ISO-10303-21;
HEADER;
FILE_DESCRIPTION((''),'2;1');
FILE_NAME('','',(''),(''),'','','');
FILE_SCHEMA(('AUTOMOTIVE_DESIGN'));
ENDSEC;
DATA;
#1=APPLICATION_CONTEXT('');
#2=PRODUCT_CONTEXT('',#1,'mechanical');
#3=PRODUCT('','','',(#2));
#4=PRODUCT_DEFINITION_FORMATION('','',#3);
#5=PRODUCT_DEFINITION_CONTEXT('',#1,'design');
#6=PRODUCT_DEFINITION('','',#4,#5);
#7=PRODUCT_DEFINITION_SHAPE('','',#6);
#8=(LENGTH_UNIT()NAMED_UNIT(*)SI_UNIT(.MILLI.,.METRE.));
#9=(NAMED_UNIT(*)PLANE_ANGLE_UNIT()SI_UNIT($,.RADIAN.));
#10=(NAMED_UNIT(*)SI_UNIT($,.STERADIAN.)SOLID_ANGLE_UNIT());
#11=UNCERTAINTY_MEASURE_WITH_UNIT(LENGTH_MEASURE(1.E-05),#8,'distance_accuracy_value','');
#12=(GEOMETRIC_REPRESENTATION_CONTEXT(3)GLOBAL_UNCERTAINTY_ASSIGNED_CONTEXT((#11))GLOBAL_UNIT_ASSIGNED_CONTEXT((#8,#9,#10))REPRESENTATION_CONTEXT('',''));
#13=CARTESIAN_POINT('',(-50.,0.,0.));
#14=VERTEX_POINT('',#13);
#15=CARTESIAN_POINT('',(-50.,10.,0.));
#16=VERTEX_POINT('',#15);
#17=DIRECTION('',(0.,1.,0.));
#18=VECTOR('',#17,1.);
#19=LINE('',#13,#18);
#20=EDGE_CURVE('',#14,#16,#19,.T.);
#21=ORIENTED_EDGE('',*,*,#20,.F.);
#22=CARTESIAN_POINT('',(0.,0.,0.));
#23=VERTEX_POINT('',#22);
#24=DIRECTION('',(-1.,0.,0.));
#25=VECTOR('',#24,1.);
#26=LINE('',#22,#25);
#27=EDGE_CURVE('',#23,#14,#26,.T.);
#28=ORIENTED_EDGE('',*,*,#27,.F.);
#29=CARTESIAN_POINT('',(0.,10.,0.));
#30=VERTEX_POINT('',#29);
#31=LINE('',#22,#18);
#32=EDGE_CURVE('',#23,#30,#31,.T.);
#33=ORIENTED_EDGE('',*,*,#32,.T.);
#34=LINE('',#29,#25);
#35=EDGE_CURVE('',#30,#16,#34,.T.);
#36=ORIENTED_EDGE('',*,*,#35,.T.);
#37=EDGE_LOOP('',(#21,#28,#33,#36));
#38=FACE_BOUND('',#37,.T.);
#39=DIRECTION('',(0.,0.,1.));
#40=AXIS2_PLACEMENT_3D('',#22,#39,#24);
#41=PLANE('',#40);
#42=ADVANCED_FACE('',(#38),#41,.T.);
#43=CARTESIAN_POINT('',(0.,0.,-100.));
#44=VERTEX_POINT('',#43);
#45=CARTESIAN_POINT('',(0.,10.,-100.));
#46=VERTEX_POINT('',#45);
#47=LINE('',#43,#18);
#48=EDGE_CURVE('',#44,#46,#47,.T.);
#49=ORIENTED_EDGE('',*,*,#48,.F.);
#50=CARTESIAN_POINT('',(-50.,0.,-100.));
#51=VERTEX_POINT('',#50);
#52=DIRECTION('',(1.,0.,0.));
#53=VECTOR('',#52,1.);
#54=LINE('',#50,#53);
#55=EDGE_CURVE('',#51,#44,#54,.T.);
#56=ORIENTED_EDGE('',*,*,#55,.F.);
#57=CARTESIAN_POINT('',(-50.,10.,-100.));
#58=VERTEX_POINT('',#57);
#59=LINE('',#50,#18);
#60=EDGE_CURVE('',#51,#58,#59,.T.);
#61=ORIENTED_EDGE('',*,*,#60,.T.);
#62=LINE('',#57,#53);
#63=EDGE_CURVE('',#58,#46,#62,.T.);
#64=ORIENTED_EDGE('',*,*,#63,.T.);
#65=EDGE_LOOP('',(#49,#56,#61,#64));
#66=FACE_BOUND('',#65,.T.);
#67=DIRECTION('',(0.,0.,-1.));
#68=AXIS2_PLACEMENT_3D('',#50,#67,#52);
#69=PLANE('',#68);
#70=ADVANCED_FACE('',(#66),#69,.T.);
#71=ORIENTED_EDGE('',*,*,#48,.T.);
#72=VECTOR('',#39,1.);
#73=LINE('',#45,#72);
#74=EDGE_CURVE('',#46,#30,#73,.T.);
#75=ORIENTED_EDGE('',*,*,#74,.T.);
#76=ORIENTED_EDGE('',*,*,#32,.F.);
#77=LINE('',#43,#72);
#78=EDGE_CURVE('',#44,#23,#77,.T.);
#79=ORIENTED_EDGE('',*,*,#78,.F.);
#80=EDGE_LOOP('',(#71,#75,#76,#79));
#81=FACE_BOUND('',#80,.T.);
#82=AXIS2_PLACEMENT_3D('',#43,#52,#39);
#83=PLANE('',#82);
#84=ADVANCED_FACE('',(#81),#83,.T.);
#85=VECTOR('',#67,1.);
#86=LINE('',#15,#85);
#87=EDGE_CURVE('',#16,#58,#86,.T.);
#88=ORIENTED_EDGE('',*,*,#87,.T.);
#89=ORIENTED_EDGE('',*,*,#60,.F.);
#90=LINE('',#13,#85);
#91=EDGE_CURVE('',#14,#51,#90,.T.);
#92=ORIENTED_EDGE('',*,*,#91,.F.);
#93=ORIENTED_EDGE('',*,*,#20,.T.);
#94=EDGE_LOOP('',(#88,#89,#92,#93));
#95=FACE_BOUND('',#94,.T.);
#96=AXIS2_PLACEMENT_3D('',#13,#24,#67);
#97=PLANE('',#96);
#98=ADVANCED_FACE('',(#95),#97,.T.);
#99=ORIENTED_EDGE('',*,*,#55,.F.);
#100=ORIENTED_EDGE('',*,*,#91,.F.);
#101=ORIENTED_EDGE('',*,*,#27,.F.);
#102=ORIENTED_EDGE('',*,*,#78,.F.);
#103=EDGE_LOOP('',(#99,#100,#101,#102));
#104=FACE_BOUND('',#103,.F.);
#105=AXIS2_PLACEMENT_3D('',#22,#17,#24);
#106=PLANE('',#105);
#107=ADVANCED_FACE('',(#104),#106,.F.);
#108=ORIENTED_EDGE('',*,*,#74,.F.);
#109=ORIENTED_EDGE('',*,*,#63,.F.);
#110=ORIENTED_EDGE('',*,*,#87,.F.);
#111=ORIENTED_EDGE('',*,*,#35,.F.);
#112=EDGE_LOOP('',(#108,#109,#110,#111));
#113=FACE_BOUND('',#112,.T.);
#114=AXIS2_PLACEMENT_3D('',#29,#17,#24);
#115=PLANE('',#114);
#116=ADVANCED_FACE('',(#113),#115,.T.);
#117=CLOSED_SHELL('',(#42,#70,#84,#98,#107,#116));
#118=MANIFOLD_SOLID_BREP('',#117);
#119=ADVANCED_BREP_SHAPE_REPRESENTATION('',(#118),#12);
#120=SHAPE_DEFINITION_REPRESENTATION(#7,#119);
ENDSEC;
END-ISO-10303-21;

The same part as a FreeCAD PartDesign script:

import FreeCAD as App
import Part
import Sketcher

V = App.Vector
Q = App.Units.Quantity


def add_polygon(sketch, points):
    """Adds a closed chain of lines whose ends are joined by coincident constraints."""
    first, n = sketch.GeometryCount, len(points)
    for a, b in zip(points, points[1:] + points[:1]):
        sketch.addGeometry(Part.LineSegment(App.Vector(*a, 0), App.Vector(*b, 0)), False)
    for i in range(n):
        sketch.addConstraint(Sketcher.Constraint("Coincident", first + i, 2, first + (i + 1) % n, 1))

doc = App.newDocument("Part")
params = doc.addObject("Spreadsheet::Sheet", "Params")
for row, (alias, value) in enumerate([
    ("sketch1_height", "3.937 in"),
    ("pad1_length", "0.3937008 in"),
], start=1):
    params.set(f"A{row}", alias)
    params.set(f"B{row}", "=" + value)
    params.setAlias(f"B{row}", alias)

body = doc.addObject("PartDesign::Body", "Body")

sketch1 = body.newObject("Sketcher::SketchObject", "Sketch")
sketch1.AttachmentSupport = (doc.getObject("XZ_Plane"), [""])
sketch1.MapMode = "FlatFace"
add_polygon(sketch1, [(-50, 0), (0, 0), (0, -100), (-50, -100)])
sketch1.addConstraint([
    Sketcher.Constraint("Horizontal", 0),
    Sketcher.Constraint("Vertical", 1),
    Sketcher.Constraint("Horizontal", 2),
    Sketcher.Constraint("Vertical", 3),
    Sketcher.Constraint("Coincident", 0, 2, -1, 1),
    Sketcher.Constraint("DistanceY", 1, 2, 1, 1, Q("3.937 in")),
    Sketcher.Constraint("DistanceX", 0, 1, 0, 2, Q("1.9685 in")),
])
sketch1.setExpression("Constraints[9]", "Params.sketch1_height")
pad1 = body.newObject("PartDesign::Pad", "Pad")
pad1.Profile = sketch1
pad1.setExpression("Length", "Params.pad1_length")
pad1.Reversed = True

doc.recompute()
